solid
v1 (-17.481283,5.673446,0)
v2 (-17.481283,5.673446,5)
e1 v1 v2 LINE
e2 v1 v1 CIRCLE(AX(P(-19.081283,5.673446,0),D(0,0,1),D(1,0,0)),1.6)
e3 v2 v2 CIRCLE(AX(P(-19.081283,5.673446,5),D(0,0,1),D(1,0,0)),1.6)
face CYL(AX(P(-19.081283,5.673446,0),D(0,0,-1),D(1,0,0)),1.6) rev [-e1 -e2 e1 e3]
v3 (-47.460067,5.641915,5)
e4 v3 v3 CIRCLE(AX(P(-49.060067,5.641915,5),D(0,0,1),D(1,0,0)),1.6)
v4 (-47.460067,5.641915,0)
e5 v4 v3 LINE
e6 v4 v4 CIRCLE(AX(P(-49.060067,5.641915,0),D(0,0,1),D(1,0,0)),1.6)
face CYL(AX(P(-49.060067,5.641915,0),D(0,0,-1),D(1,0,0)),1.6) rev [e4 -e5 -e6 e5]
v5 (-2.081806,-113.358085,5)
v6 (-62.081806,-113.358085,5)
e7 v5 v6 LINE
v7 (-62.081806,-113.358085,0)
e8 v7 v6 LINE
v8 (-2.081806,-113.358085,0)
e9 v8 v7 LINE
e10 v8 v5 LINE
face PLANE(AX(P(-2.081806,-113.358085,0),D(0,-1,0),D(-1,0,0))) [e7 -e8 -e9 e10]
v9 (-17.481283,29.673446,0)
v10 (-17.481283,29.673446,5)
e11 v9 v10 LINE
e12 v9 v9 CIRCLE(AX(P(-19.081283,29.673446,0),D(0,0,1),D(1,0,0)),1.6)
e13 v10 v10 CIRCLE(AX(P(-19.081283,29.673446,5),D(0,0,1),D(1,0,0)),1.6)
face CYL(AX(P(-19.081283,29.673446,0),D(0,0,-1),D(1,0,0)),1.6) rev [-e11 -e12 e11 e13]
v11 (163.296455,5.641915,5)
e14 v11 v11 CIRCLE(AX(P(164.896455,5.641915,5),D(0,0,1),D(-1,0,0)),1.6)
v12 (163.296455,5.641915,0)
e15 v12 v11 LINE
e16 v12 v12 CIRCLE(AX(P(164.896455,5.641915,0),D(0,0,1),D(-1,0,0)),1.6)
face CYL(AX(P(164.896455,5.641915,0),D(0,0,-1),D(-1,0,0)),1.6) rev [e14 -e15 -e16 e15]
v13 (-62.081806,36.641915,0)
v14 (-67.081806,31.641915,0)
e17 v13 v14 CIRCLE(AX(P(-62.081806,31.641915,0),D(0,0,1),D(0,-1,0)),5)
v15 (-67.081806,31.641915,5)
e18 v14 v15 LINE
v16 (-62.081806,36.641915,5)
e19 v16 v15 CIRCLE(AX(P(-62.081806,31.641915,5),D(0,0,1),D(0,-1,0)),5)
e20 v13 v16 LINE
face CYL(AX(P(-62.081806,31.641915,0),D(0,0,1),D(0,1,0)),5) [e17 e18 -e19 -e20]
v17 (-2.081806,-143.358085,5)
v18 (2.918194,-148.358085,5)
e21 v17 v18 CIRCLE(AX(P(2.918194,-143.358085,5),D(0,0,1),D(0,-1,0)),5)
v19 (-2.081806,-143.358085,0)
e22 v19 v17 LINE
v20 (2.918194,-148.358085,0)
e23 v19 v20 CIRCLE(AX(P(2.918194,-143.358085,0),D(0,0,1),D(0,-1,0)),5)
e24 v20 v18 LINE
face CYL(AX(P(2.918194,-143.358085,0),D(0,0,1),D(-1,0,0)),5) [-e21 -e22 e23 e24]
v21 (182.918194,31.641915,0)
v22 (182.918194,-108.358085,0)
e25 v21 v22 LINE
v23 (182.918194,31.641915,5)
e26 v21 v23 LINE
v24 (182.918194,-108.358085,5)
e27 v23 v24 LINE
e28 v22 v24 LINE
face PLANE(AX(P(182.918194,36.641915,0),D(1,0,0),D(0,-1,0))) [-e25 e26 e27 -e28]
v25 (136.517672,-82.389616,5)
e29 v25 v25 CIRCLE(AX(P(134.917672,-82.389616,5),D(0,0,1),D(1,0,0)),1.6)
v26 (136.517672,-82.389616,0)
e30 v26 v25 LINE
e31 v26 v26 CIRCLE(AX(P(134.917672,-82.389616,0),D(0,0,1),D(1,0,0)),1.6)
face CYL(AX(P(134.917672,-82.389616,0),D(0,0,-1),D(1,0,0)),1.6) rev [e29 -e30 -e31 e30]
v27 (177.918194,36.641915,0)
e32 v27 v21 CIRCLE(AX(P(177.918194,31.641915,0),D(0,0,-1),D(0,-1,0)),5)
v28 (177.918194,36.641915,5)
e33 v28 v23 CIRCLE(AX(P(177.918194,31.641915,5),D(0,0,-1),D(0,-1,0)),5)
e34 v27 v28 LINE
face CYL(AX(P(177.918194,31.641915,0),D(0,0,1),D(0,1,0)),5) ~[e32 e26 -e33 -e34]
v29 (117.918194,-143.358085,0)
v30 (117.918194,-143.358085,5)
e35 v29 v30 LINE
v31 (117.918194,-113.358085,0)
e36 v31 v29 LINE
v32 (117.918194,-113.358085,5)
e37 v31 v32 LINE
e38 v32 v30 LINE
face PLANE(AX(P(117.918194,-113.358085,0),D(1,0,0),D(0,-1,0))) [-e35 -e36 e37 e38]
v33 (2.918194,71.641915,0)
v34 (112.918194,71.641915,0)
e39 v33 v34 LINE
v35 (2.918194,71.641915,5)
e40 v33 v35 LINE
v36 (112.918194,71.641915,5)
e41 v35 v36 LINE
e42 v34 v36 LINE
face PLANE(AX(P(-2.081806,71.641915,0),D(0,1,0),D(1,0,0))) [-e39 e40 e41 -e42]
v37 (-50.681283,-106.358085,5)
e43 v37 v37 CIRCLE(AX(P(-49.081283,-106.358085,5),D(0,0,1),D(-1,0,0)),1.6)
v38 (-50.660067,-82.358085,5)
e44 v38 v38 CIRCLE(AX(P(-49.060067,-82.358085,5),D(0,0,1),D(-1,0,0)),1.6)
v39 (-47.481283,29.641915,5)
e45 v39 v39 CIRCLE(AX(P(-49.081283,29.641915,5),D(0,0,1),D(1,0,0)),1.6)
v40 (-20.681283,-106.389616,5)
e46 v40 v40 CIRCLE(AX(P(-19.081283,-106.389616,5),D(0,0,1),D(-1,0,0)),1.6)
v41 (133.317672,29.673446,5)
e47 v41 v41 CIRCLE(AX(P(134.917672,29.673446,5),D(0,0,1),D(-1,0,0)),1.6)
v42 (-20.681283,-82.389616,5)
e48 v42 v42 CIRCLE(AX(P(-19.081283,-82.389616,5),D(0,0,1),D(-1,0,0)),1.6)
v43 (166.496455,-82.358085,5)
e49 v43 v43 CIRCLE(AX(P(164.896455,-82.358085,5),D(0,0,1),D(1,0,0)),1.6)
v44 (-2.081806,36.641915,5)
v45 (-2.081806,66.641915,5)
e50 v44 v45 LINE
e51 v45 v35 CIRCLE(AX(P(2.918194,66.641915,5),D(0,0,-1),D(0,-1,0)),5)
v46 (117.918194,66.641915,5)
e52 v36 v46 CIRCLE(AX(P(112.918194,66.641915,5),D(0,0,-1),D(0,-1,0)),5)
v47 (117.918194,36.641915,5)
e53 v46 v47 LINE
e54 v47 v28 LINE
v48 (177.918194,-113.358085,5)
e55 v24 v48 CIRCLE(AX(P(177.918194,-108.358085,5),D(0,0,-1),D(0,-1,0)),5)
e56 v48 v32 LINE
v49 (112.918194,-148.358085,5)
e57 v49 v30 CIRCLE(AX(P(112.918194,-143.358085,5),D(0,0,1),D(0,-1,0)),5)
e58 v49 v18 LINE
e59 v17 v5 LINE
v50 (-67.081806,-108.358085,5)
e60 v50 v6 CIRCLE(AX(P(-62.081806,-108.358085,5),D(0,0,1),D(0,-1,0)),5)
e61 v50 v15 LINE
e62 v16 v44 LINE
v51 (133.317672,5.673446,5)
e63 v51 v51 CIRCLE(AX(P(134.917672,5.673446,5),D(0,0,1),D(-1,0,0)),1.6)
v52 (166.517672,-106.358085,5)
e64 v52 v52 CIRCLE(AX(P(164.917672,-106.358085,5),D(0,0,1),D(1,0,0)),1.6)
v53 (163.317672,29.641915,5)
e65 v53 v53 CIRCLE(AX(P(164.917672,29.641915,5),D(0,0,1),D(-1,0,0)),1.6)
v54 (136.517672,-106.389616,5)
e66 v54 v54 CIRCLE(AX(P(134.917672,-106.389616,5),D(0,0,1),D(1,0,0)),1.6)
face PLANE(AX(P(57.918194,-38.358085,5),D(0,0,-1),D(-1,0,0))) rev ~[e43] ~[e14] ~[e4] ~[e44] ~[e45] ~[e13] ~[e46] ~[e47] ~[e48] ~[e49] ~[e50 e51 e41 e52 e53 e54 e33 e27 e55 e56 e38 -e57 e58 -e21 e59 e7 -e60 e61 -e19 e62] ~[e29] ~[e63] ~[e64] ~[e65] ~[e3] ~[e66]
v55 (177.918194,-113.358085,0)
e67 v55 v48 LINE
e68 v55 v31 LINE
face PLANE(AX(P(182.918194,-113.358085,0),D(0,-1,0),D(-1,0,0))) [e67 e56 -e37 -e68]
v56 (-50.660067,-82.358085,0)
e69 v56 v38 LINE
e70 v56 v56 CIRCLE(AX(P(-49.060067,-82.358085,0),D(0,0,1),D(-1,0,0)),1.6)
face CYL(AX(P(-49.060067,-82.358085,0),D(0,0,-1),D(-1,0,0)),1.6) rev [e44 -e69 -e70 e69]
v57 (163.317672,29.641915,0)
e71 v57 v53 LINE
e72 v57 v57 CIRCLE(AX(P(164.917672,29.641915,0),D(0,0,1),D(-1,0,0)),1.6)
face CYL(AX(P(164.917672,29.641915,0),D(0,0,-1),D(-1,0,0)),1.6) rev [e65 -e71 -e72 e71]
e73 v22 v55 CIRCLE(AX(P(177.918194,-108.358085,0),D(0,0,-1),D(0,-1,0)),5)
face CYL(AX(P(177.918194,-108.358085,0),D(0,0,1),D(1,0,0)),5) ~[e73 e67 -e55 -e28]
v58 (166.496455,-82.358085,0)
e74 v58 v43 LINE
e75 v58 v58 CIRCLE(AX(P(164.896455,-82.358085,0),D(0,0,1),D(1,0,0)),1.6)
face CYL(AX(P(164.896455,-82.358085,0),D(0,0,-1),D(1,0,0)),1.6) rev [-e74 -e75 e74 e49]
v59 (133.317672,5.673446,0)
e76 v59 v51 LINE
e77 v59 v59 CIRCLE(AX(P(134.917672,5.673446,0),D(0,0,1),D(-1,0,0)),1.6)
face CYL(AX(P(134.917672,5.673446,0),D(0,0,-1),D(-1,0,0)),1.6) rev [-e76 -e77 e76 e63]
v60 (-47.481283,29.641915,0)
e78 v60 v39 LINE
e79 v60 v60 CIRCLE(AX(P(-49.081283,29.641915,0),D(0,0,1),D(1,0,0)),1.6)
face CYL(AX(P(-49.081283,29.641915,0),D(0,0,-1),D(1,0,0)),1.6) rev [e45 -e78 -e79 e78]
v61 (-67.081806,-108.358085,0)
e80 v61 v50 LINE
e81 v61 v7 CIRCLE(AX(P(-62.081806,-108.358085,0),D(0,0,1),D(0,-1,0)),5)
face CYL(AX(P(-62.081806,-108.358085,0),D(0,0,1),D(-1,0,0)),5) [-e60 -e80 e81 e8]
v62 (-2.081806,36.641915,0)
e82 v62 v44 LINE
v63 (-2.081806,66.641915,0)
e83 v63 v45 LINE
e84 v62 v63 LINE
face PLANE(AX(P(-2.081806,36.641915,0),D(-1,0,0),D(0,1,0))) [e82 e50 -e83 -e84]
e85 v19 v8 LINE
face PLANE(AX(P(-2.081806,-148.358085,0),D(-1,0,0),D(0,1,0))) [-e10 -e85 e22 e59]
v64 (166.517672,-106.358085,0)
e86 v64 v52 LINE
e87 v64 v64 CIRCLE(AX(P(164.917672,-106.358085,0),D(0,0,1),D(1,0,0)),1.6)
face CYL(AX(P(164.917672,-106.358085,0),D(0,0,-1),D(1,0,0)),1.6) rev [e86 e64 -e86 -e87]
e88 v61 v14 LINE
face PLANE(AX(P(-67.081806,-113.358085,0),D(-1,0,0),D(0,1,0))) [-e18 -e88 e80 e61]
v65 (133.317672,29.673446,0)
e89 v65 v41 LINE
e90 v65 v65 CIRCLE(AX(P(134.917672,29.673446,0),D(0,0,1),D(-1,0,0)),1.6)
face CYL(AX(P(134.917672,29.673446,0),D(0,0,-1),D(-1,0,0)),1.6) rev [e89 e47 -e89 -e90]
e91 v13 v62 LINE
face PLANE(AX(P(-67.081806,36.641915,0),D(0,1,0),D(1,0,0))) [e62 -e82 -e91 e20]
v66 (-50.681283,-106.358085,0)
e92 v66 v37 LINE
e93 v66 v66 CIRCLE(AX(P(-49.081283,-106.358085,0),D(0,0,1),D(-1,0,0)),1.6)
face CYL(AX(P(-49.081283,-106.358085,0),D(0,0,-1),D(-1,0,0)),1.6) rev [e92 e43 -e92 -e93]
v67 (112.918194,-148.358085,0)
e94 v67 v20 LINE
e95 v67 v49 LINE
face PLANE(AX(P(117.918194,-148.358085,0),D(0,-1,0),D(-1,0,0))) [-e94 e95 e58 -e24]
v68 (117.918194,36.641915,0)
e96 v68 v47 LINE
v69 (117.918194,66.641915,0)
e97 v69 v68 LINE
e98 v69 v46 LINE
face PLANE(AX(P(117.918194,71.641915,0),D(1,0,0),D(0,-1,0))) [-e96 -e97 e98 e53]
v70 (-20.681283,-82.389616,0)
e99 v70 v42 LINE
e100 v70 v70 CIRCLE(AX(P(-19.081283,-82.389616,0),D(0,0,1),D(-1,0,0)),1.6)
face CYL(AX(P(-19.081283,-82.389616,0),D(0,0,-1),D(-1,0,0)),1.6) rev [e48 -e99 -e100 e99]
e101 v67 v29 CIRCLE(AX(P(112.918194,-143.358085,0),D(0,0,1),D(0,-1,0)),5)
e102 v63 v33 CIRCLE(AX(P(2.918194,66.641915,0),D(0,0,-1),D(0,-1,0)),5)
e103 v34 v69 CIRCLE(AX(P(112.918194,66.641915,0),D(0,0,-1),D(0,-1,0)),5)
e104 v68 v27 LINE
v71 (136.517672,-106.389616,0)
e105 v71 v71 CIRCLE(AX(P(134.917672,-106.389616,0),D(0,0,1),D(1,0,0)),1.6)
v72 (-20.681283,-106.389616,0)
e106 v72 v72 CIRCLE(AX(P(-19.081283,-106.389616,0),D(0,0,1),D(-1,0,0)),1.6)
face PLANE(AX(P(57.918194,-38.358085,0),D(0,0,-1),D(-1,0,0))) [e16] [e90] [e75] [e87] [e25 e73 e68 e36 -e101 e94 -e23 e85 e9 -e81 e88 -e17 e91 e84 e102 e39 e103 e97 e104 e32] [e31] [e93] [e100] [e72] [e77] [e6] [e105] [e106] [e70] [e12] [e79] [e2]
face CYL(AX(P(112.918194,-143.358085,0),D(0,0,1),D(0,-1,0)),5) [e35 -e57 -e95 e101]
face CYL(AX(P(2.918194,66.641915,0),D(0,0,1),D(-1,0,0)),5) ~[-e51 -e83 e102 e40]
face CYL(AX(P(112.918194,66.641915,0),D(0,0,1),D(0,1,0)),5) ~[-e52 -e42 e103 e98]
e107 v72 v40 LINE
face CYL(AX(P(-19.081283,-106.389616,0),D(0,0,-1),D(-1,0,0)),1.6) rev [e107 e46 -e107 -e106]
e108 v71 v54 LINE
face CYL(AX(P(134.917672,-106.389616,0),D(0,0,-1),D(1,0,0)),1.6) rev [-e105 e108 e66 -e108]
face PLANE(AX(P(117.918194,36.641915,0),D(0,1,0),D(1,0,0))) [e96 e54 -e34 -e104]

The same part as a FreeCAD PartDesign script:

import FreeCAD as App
import Part
import Sketcher
from FreeCAD import Vector
Q = App.Units.Quantity


def edges_at(feature, points):
    """Names of the edges that pass closest to the given points."""
    edges = feature.Shape.Edges
    near = lambda p: min(range(len(edges)), key=lambda i: edges[i].distToShape(Part.Vertex(*p))[0])
    return sorted({f"Edge{near(p) + 1}" for p in points})

doc = App.newDocument("Part")
body = doc.addObject("PartDesign::Body", "Body")

# Sketch on XY plane
sketch1 = body.newObject("Sketcher::SketchObject", "Sketch")
sketch1.AttachmentSupport = (doc.getObject("XY_Plane"), [""])
sketch1.MapMode = "FlatFace"
sketch1.addGeometry([
    Part.LineSegment(Vector(-2.081806, 36.641915, 0), Vector(-67.081806, 36.641915, 0)),  # 0
    Part.LineSegment(Vector(-67.081806, 36.641915, 0), Vector(-67.081806, -113.358085, 0)),  # 1
    Part.LineSegment(Vector(-67.081806, -113.358085, 0), Vector(-2.081806, -113.358085, 0)),  # 2
    Part.LineSegment(Vector(-2.081806, -113.358085, 0), Vector(-2.081806, -148.358085, 0)),  # 3
    Part.LineSegment(Vector(-2.081806, -148.358085, 0), Vector(117.918194, -148.358085, 0)),  # 4
    Part.LineSegment(Vector(117.918194, -148.358085, 0), Vector(117.918194, -113.358085, 0)),  # 5
    Part.LineSegment(Vector(117.918194, -113.358085, 0), Vector(182.918194, -113.358085, 0)),  # 6
    Part.LineSegment(Vector(182.918194, -113.358085, 0), Vector(182.918194, 36.641915, 0)),  # 7
    Part.LineSegment(Vector(182.918194, 36.641915, 0), Vector(117.918194, 36.641915, 0)),  # 8
    Part.LineSegment(Vector(117.918194, 36.641915, 0), Vector(117.918194, 71.641915, 0)),  # 9
    Part.LineSegment(Vector(117.918194, 71.641915, 0), Vector(-2.081806, 71.641915, 0)),  # 10
    Part.LineSegment(Vector(-2.081806, 71.641915, 0), Vector(-2.081806, 36.641915, 0)),  # 11
    Part.Circle(Vector(164.917672, -106.358085, 0), Vector(0, 0, 1), 1.6),  # 12
    Part.Circle(Vector(134.917672, -106.389616, 0), Vector(0, 0, 1), 1.6),  # 13
    Part.Circle(Vector(164.896455, -82.358085, 0), Vector(0, 0, 1), 1.6),  # 14
    Part.Circle(Vector(134.917672, -82.389616, 0), Vector(0, 0, 1), 1.6),  # 15
    Part.Circle(Vector(-19.081283, -106.389616, 0), Vector(0, 0, 1), 1.6),  # 16
    Part.Circle(Vector(-49.081283, -106.358085, 0), Vector(0, 0, 1), 1.6),  # 17
    Part.Circle(Vector(-19.081283, -82.389616, 0), Vector(0, 0, 1), 1.6),  # 18
    Part.Circle(Vector(-49.060067, -82.358085, 0), Vector(0, 0, 1), 1.6),  # 19
    Part.Circle(Vector(164.896455, 5.641915, 0), Vector(0, 0, 1), 1.6),  # 20
    Part.Circle(Vector(134.917672, 5.673446, 0), Vector(0, 0, 1), 1.6),  # 21
    Part.Circle(Vector(164.917672, 29.641915, 0), Vector(0, 0, 1), 1.6),  # 22
    Part.Circle(Vector(134.917672, 29.673446, 0), Vector(0, 0, 1), 1.6),  # 23
    Part.Circle(Vector(-19.081283, 5.673446, 0), Vector(0, 0, 1), 1.6),  # 24
    Part.Circle(Vector(-49.060067, 5.641915, 0), Vector(0, 0, 1), 1.6),  # 25
    Part.Circle(Vector(-19.081283, 29.673446, 0), Vector(0, 0, 1), 1.6),  # 26
    Part.Circle(Vector(-49.081283, 29.641915, 0), Vector(0, 0, 1), 1.6),  # 27
], False)
sketch1.addConstraint([
    Sketcher.Constraint("Coincident", 0, 2, 1, 1),
    Sketcher.Constraint("Coincident", 1, 2, 2, 1),
    Sketcher.Constraint("Coincident", 2, 2, 3, 1),
    Sketcher.Constraint("Coincident", 3, 2, 4, 1),
    Sketcher.Constraint("Coincident", 4, 2, 5, 1),
    Sketcher.Constraint("Coincident", 5, 2, 6, 1),
    Sketcher.Constraint("Coincident", 6, 2, 7, 1),
    Sketcher.Constraint("Coincident", 7, 2, 8, 1),
    Sketcher.Constraint("Coincident", 8, 2, 9, 1),
    Sketcher.Constraint("Coincident", 9, 2, 10, 1),
    Sketcher.Constraint("Coincident", 10, 2, 11, 1),
    Sketcher.Constraint("Coincident", 11, 2, 0, 1),
    Sketcher.Constraint("Horizontal", 0),
    Sketcher.Constraint("Vertical", 1),
    Sketcher.Constraint("Horizontal", 2),
    Sketcher.Constraint("Vertical", 3),
    Sketcher.Constraint("Horizontal", 4),
    Sketcher.Constraint("Vertical", 5),
    Sketcher.Constraint("Horizontal", 6),
    Sketcher.Constraint("Vertical", 7),
    Sketcher.Constraint("Horizontal", 8),
    Sketcher.Constraint("Vertical", 9),
    Sketcher.Constraint("Horizontal", 10),
    Sketcher.Constraint("Vertical", 11),
    Sketcher.Constraint("Equal", 12, 13),
    Sketcher.Constraint("Equal", 13, 14),
    Sketcher.Constraint("Equal", 14, 15),
    Sketcher.Constraint("Equal", 15, 16),
    Sketcher.Constraint("Equal", 16, 17),
    Sketcher.Constraint("Equal", 17, 18),
    Sketcher.Constraint("Equal", 18, 19),
    Sketcher.Constraint("Equal", 19, 20),
    Sketcher.Constraint("Equal", 20, 21),
    Sketcher.Constraint("Equal", 21, 22),
    Sketcher.Constraint("Equal", 22, 23),
    Sketcher.Constraint("Equal", 23, 24),
    Sketcher.Constraint("Equal", 24, 25),
    Sketcher.Constraint("Equal", 25, 26),
    Sketcher.Constraint("Equal", 26, 27),
    Sketcher.Constraint("Horizontal", 13, 3, 16, 3),
    Sketcher.Constraint("Horizontal", 12, 3, 17, 3),
    Sketcher.Constraint("Horizontal", 15, 3, 18, 3),
    Sketcher.Constraint("Horizontal", 14, 3, 19, 3),
    Sketcher.Constraint("Horizontal", 21, 3, 24, 3),
    Sketcher.Constraint("Horizontal", 20, 3, 25, 3),
    Sketcher.Constraint("Horizontal", 23, 3, 26, 3),
    Sketcher.Constraint("Horizontal", 22, 3, 27, 3),
    Sketcher.Constraint("Horizontal", 2, 2, 5, 2),
    Sketcher.Constraint("Horizontal", 0, 2, 7, 2),
    Sketcher.Constraint("Vertical", 13, 3, 15, 3),
    Sketcher.Constraint("Vertical", 16, 3, 18, 3),
    Sketcher.Constraint("Vertical", 14, 3, 20, 3),
    Sketcher.Constraint("Vertical", 15, 3, 21, 3),
    Sketcher.Constraint("Vertical", 12, 3, 22, 3),
    Sketcher.Constraint("Vertical", 21, 3, 23, 3),
    Sketcher.Constraint("Vertical", 18, 3, 24, 3),
    Sketcher.Constraint("Vertical", 19, 3, 25, 3),
    Sketcher.Constraint("Vertical", 24, 3, 26, 3),
    Sketcher.Constraint("Vertical", 17, 3, 27, 3),
    Sketcher.Constraint("Vertical", 5, 2, 8, 2),
    Sketcher.Constraint("Vertical", 3, 2, 10, 2),
    Sketcher.Constraint("Equal", 2, 6),
    Sketcher.Constraint("Equal", 5, 9),
    Sketcher.Constraint("Diameter", 12, Q("3.2 mm")),
    Sketcher.Constraint("DistanceX", 0, 2, 0, 1, Q("65 mm")),
    Sketcher.Constraint("DistanceX", 4, 1, 4, 2, Q("120 mm")),
    Sketcher.Constraint("DistanceY", 1, 2, 1, 1, Q("150 mm")),
    Sketcher.Constraint("DistanceY", 3, 2, 3, 1, Q("35 mm")),
    Sketcher.Constraint("DistanceX", 13, 3, 12, 3, Q("30 mm")),
    Sketcher.Constraint("DistanceY", 12, 3, 14, 3, Q("24 mm")),
    Sketcher.Constraint("DistanceY", 13, 3, 15, 3, Q("24 mm")),
    Sketcher.Constraint("DistanceX", 17, 3, 16, 3, Q("30 mm")),
    Sketcher.Constraint("DistanceY", 14, 3, 20, 3, Q("88 mm")),
    Sketcher.Constraint("DistanceY", 20, 3, 22, 3, Q("24 mm")),
    Sketcher.Constraint("DistanceY", 21, 3, 23, 3, Q("24 mm")),
    Sketcher.Constraint("DistanceY", 27, 3, 0, 2, Q("7 mm")),
    Sketcher.Constraint("DistanceX", -1, 1, 12, 3, Q("164.917672 mm")),
    Sketcher.Constraint("DistanceY", 13, 3, 12, 3, Q("0.031531 mm")),
    Sketcher.Constraint("DistanceX", 16, 3, 14, 3, Q("183.977739 mm")),
    Sketcher.Constraint("DistanceX", 19, 3, 15, 3, Q("183.977739 mm")),
    Sketcher.Constraint("DistanceY", 20, 3, 21, 3, Q("0.031531 mm")),
    Sketcher.Constraint("DistanceX", 0, 2, 25, 3, Q("18.021739 mm")),
    Sketcher.Constraint("DistanceX", 4, 2, 14, 3, Q("46.978261 mm")),
    Sketcher.Constraint("DistanceY", 12, 3, -1, 1, Q("106.358085 mm")),
])
pad1 = body.newObject("PartDesign::Pad", "Pad")
pad1.Profile = sketch1
pad1.Length = 5
doc.recompute()

fillet = body.newObject("PartDesign::Fillet", "Fillet")
fillet.Base = (pad1, edges_at(pad1, [
    (-67.082, 36.642, 2.5),
    (-2.082, 71.642, 2.5),
    (117.918, 71.642, 2.5),
    (182.918, 36.642, 2.5),
    (182.918, -113.358, 2.5),
    (117.918, -148.358, 2.5),
    (-2.082, -148.358, 2.5),
    (-67.082, -113.358, 2.5),
]))
fillet.Radius = 5

doc.recompute()
